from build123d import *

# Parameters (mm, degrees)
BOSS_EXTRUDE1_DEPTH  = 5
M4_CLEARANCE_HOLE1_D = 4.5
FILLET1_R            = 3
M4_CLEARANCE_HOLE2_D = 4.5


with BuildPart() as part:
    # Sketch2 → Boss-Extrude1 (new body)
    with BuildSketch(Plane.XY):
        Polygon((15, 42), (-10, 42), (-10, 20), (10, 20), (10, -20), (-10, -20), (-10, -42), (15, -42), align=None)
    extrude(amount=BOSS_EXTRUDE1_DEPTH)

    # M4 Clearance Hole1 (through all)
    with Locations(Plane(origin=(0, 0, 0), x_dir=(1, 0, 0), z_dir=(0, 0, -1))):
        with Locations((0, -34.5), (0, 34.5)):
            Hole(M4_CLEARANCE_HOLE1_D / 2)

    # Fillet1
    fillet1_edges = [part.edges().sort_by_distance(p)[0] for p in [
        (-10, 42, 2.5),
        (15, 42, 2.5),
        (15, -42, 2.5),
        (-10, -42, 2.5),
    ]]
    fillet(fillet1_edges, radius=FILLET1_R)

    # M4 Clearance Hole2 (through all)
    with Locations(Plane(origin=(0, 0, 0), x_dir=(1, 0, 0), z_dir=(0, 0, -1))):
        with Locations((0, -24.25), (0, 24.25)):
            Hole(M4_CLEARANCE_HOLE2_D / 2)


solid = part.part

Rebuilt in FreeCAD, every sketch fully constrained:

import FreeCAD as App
import Part
import Sketcher
Q = App.Units.Quantity


def edges_at(feature, points):
    """Names of the edges that pass closest to the given points."""
    edges = feature.Shape.Edges
    near = lambda p: min(range(len(edges)), key=lambda i: edges[i].distToShape(Part.Vertex(*p))[0])
    return sorted({f"Edge{near(p) + 1}" for p in points})


def add_polygon(sketch, points):
    """Adds a closed chain of lines whose ends are joined by coincident constraints."""
    first, n = sketch.GeometryCount, len(points)
    for a, b in zip(points, points[1:] + points[:1]):
        sketch.addGeometry(Part.LineSegment(App.Vector(*a, 0), App.Vector(*b, 0)), False)
    for i in range(n):
        sketch.addConstraint(Sketcher.Constraint("Coincident", first + i, 2, first + (i + 1) % n, 1))

doc = App.newDocument("Part")
body = doc.addObject("PartDesign::Body", "Body")

# Sketch on XY plane
sketch1 = body.newObject("Sketcher::SketchObject", "Sketch")
sketch1.AttachmentSupport = (doc.getObject("XY_Plane"), [""])
sketch1.MapMode = "FlatFace"
add_polygon(sketch1, [(15, 42), (-10, 42), (-10, 20), (10, 20), (10, -20), (-10, -20), (-10, -42), (15, -42)])  # lines 0-7
sketch1.addConstraint([
    Sketcher.Constraint("Horizontal", 0),
    Sketcher.Constraint("Vertical", 1),
    Sketcher.Constraint("Horizontal", 2),
    Sketcher.Constraint("Vertical", 3),
    Sketcher.Constraint("Horizontal", 4),
    Sketcher.Constraint("Vertical", 5),
    Sketcher.Constraint("Horizontal", 6),
    Sketcher.Constraint("Vertical", 7),
    Sketcher.Constraint("Symmetric", 1, 2, 3, 2, -1, 1),
    Sketcher.Constraint("Symmetric", 0, 2, 5, 2, -1),
    Sketcher.Constraint("DistanceX", 0, 2, 0, 1, Q("25 mm")),
    Sketcher.Constraint("DistanceX", 2, 1, 2, 2, Q("20 mm")),
    Sketcher.Constraint("DistanceY", 1, 2, 1, 1, Q("22 mm")),
    Sketcher.Constraint("DistanceY", 3, 2, 3, 1, Q("40 mm")),
])
pad1 = body.newObject("PartDesign::Pad", "Pad")
pad1.Profile = sketch1
pad1.Length = 5

# Sketch on XY plane
sketch2 = body.newObject("Sketcher::SketchObject", "Sketch001")
sketch2.AttachmentSupport = (doc.getObject("XY_Plane"), [""])
sketch2.MapMode = "FlatFace"
sketch2.addGeometry([
    Part.Circle(App.Vector(0, 34.5, 0), App.Vector(0, 0, 1), 2.25),
    Part.Circle(App.Vector(0, -34.5, 0), App.Vector(0, 0, 1), 2.25),
], False)
sketch2.addConstraint([
    Sketcher.Constraint("Equal", 0, 1),
    Sketcher.Constraint("Symmetric", 0, 3, 1, 3, -1, 1),
    Sketcher.Constraint("PointOnObject", 0, 3, -2),
    Sketcher.Constraint("Diameter", 0, Q("4.5 mm")),
    Sketcher.Constraint("DistanceY", 1, 3, 0, 3, Q("69 mm")),
])
doc.recompute()
hole = body.newObject("PartDesign::Hole", "Hole")
hole.Profile = sketch2
hole.ThreadType = "None"
hole.Diameter = 4.5
hole.DepthType = "ThroughAll"
hole.Reversed = True
doc.recompute()

fillet = body.newObject("PartDesign::Fillet", "Fillet")
fillet.Base = (hole, edges_at(hole, [
    (-10, 42, 2.5),
    (15, 42, 2.5),
    (15, -42, 2.5),
    (-10, -42, 2.5),
]))
fillet.Radius = 3

# Sketch on XY plane
sketch3 = body.newObject("Sketcher::SketchObject", "Sketch002")
sketch3.AttachmentSupport = (doc.getObject("XY_Plane"), [""])
sketch3.MapMode = "FlatFace"
sketch3.addGeometry([
    Part.Circle(App.Vector(0, 24.25, 0), App.Vector(0, 0, 1), 2.25),
    Part.Circle(App.Vector(0, -24.25, 0), App.Vector(0, 0, 1), 2.25),
], False)
sketch3.addConstraint([
    Sketcher.Constraint("Equal", 0, 1),
    Sketcher.Constraint("Symmetric", 0, 3, 1, 3, -1, 1),
    Sketcher.Constraint("PointOnObject", 0, 3, -2),
    Sketcher.Constraint("Diameter", 0, Q("4.5 mm")),
    Sketcher.Constraint("DistanceY", 1, 3, 0, 3, Q("48.5 mm")),
])
doc.recompute()
hole2 = body.newObject("PartDesign::Hole", "Hole001")
hole2.Profile = sketch3
hole2.ThreadType = "None"
hole2.Diameter = 4.5
hole2.DepthType = "ThroughAll"
hole2.Reversed = True

doc.recompute()
